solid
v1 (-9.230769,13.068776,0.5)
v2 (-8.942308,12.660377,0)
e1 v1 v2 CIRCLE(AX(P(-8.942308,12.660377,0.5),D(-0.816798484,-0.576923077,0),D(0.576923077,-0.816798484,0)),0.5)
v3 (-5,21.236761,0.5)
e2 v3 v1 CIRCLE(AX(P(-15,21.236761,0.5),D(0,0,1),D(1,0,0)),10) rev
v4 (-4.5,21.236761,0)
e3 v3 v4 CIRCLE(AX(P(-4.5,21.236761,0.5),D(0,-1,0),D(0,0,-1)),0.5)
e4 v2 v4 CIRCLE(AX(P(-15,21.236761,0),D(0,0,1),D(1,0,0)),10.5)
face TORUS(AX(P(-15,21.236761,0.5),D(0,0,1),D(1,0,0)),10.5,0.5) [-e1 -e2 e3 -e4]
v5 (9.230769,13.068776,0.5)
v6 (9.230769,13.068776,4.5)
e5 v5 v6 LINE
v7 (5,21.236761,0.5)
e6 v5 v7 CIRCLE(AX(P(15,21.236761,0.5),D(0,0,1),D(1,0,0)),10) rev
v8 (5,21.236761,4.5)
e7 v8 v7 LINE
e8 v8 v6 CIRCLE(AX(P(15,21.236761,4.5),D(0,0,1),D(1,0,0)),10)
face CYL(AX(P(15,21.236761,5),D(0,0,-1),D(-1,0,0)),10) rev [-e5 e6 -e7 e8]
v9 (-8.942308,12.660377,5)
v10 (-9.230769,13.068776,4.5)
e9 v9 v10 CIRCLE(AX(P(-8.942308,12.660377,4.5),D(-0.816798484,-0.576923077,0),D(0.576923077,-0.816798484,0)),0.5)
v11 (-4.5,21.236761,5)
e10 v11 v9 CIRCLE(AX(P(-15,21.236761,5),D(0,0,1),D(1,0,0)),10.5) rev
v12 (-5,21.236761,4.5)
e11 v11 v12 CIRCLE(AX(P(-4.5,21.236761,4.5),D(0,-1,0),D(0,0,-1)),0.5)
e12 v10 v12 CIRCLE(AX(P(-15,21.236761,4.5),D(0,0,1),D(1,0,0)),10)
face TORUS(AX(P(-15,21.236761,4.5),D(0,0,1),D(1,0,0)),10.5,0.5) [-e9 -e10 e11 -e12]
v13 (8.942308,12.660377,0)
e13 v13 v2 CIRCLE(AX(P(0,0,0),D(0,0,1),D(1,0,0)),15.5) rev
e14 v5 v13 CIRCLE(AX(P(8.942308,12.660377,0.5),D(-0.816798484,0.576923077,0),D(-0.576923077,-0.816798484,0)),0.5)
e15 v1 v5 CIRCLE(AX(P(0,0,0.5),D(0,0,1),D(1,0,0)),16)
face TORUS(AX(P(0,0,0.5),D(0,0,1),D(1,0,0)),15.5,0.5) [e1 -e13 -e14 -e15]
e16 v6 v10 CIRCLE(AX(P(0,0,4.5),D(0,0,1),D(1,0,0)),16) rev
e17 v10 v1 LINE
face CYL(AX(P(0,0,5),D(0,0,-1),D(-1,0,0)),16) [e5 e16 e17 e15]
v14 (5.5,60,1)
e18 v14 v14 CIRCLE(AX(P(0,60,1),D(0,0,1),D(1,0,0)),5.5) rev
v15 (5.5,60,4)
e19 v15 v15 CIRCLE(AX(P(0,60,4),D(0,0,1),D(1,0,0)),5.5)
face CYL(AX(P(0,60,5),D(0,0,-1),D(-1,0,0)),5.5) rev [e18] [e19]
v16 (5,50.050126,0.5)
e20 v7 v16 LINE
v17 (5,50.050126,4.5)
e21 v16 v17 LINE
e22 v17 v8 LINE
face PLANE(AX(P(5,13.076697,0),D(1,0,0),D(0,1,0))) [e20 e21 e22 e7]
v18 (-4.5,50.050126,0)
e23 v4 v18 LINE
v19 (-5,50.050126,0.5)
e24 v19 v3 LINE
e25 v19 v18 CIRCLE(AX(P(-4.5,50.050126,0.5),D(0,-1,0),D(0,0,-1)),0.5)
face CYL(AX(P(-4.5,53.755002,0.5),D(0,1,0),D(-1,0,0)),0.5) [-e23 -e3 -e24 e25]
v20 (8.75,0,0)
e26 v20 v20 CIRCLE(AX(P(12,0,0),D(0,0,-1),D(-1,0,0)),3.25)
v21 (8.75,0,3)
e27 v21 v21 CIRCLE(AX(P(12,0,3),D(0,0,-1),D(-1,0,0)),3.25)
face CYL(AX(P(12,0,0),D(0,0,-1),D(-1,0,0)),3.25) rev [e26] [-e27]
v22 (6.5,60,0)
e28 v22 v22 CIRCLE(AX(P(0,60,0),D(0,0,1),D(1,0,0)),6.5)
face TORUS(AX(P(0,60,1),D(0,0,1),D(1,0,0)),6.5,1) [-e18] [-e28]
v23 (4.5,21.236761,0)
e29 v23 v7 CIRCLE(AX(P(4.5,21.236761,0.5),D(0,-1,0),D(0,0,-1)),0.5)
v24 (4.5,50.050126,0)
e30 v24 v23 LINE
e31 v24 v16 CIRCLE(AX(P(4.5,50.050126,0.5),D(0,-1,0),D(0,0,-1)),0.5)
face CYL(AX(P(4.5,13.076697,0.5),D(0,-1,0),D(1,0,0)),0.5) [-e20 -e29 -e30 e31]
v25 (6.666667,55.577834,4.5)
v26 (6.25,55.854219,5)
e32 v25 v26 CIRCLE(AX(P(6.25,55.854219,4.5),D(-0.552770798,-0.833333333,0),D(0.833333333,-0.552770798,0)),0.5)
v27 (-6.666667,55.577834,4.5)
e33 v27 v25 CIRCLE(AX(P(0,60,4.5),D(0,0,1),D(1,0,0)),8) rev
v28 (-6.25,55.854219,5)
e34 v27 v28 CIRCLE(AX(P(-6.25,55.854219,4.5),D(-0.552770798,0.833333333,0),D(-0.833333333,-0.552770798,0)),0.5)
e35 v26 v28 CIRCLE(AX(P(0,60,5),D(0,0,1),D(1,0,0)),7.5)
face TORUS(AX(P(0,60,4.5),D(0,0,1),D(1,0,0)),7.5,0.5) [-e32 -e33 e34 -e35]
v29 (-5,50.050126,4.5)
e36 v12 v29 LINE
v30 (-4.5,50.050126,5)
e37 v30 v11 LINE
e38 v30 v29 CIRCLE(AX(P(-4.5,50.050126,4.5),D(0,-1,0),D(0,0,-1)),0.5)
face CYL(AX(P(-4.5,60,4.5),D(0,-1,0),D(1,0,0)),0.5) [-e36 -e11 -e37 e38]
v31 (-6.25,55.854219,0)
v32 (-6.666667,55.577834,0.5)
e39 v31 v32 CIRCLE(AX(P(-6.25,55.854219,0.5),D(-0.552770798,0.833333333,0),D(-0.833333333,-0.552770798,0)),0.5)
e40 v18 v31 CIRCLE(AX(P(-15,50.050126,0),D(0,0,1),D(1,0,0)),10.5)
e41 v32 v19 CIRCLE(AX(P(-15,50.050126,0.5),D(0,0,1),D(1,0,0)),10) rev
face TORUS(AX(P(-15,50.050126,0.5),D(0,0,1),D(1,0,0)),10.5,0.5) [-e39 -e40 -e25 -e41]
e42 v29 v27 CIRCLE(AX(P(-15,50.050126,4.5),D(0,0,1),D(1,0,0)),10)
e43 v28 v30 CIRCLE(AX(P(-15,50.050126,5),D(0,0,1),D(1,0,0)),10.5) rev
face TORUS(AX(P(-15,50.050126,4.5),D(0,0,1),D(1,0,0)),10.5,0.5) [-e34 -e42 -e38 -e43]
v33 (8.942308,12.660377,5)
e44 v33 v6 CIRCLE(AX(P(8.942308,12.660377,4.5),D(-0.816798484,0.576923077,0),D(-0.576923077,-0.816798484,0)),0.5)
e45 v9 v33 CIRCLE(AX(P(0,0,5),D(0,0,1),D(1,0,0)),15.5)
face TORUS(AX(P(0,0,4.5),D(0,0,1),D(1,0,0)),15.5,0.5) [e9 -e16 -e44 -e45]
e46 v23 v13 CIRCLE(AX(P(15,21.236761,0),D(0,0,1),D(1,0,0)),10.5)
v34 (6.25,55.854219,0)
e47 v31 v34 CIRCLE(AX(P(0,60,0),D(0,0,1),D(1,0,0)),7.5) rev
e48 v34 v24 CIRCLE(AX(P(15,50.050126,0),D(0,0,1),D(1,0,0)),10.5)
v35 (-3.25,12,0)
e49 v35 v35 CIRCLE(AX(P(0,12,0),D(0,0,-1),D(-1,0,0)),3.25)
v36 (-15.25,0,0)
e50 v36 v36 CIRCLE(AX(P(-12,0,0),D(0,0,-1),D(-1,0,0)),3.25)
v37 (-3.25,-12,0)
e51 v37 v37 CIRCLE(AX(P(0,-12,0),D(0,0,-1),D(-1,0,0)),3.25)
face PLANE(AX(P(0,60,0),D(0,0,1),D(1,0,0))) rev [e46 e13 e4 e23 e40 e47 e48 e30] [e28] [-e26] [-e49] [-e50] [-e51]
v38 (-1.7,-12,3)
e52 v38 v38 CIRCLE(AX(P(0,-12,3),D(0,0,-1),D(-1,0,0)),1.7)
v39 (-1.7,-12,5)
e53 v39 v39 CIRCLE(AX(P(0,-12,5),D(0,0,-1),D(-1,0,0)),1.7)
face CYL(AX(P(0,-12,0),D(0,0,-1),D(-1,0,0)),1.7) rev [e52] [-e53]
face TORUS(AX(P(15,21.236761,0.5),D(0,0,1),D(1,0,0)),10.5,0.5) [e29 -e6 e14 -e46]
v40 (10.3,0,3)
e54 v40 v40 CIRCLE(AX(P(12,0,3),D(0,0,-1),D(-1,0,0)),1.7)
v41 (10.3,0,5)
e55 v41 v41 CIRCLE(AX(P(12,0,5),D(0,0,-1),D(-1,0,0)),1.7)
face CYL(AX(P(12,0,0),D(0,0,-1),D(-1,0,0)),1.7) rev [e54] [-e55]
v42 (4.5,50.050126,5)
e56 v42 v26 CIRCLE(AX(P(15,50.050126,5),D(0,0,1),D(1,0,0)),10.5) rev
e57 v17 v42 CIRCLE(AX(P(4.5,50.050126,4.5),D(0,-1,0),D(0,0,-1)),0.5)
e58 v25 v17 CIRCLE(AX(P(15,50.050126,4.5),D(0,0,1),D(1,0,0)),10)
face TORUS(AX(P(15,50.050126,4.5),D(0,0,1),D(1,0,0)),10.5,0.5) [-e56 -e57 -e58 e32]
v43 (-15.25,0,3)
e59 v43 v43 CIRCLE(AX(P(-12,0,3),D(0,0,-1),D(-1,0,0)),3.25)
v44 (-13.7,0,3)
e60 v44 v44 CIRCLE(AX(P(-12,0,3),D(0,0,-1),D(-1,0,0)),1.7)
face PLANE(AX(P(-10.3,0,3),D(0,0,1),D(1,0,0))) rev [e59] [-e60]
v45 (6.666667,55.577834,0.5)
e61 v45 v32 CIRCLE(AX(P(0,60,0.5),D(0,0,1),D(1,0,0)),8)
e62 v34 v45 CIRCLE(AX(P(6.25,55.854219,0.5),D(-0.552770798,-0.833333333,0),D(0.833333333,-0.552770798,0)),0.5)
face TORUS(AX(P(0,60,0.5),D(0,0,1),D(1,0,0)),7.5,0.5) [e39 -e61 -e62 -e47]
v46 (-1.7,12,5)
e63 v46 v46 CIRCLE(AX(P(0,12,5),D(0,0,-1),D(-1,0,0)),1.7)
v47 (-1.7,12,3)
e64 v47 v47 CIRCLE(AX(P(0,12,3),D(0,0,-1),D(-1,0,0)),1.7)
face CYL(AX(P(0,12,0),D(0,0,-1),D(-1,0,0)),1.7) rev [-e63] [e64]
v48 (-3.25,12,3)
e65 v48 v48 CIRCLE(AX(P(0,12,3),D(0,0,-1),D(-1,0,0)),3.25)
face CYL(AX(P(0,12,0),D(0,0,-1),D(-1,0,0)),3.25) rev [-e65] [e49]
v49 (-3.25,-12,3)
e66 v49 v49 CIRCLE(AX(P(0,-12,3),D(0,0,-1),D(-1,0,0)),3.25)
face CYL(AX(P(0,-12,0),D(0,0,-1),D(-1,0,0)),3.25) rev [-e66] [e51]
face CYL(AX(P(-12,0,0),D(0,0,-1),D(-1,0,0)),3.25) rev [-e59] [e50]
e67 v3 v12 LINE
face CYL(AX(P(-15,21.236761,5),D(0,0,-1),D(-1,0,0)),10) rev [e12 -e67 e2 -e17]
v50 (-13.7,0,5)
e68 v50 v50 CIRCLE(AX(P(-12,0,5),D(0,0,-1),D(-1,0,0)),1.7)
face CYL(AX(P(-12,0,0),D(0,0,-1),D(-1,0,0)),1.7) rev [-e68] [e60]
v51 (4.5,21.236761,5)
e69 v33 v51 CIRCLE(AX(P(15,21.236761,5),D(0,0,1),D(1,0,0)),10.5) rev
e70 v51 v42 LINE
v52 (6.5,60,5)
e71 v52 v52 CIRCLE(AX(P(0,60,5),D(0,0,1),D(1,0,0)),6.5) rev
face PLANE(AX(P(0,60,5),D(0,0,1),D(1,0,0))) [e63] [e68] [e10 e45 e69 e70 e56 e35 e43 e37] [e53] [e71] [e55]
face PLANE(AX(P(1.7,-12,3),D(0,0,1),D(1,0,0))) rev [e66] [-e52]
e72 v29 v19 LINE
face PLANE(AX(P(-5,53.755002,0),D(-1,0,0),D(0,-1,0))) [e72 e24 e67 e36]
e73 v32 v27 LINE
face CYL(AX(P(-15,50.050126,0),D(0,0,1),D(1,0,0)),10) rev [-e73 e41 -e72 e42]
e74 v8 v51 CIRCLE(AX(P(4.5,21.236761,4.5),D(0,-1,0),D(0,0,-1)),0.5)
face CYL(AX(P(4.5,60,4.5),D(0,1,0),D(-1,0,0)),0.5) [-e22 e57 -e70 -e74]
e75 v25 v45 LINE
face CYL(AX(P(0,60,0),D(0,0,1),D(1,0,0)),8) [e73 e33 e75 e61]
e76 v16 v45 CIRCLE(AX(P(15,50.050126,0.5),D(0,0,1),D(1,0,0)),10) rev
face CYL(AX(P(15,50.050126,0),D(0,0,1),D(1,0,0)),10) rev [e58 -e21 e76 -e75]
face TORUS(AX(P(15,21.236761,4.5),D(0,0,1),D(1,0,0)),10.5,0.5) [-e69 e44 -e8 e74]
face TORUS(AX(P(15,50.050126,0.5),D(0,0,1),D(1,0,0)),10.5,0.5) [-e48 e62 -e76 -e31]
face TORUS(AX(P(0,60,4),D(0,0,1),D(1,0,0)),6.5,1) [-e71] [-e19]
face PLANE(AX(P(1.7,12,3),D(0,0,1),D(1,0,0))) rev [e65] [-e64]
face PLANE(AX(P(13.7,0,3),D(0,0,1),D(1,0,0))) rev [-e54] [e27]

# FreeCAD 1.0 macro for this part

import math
import FreeCAD as App
import Part
import Sketcher
from FreeCAD import Vector
Q = App.Units.Quantity


def edges_at(feature, points):
    """Names of the edges that pass closest to the given points."""
    edges = feature.Shape.Edges
    near = lambda p: min(range(len(edges)), key=lambda i: edges[i].distToShape(Part.Vertex(*p))[0])
    return sorted({f"Edge{near(p) + 1}" for p in points})


def add_polygon(sketch, points):
    """Adds a closed chain of lines whose ends are joined by coincident constraints."""
    first, n = sketch.GeometryCount, len(points)
    for a, b in zip(points, points[1:] + points[:1]):
        sketch.addGeometry(Part.LineSegment(App.Vector(*a, 0), App.Vector(*b, 0)), False)
    for i in range(n):
        sketch.addConstraint(Sketcher.Constraint("Coincident", first + i, 2, first + (i + 1) % n, 1))

doc = App.newDocument("Part")
body = doc.addObject("PartDesign::Body", "Body")

sketch1 = doc.addObject("Sketcher::SketchObject", "Sketch")
body.addObject(sketch1)
sketch1.AttachmentSupport = (doc.XY_Plane, [""])
sketch1.MapMode = "FlatFace"
sketch1.AttachmentOffset = App.Placement(Vector(0, 0, 5), App.Rotation())
sketch1.addGeometry(Part.LineSegment(Vector(-5, 53.755002, 0), Vector(-5, 13.076697, 0)), False)
sketch1.addGeometry(Part.ArcOfCircle(Part.Circle(Vector(0, 0, 0), Vector(0, 0, 1), 14), math.radians(110.924832), math.radians(429.075168)), False)
sketch1.addGeometry(Part.LineSegment(Vector(5, 13.076697, 0), Vector(5, 53.755002, 0)), False)
sketch1.addGeometry(Part.ArcOfCircle(Part.Circle(Vector(0, 60, 0), Vector(0, 0, 1), 8), math.radians(-51.317813), math.radians(231.317813)), False)
sketch1.addConstraint(Sketcher.Constraint("Coincident", 0, 2, 1, 1))
sketch1.addConstraint(Sketcher.Constraint("Coincident", 1, 2, 2, 1))
sketch1.addConstraint(Sketcher.Constraint("Coincident", 2, 2, 3, 1))
sketch1.addConstraint(Sketcher.Constraint("Coincident", 3, 2, 0, 1))
sketch1.addConstraint(Sketcher.Constraint("Vertical", 0))
sketch1.addConstraint(Sketcher.Constraint("Vertical", 2))
sketch1.addConstraint(Sketcher.Constraint("Coincident", 1, 3, -1, 1))
sketch1.addConstraint(Sketcher.Constraint("Symmetric", 2, 2, 3, 2, -2))
sketch1.addConstraint(Sketcher.Constraint("Radius", 1, 14.0))
sketch1.addConstraint(Sketcher.Constraint("Radius", 3, 8.0))
sketch1.addConstraint(Sketcher.Constraint("DistanceY", -1, 1, 3, 3, 60.0))
sketch1.addConstraint(Sketcher.Constraint("DistanceX", 0, 2, -1, 1, 5.0))
pad1 = doc.addObject("PartDesign::Pad", "Pad")
body.addObject(pad1)
pad1.Profile = sketch1
pad1.Length = 5
pad1.Reversed = True

sketch2 = doc.addObject("Sketcher::SketchObject", "Sketch001")
body.addObject(sketch2)
sketch2.AttachmentSupport = (doc.XZ_Plane, [""])
sketch2.MapMode = "FlatFace"
sketch2.AttachmentOffset = App.Placement(Vector(0, 0, -60), App.Rotation())
add_polygon(sketch2, [(3.5, 5), (0, 5), (0, 0), (4.3, 0), (2.5, 1.8), (2.5, 2), (3.5, 2)])
sketch2.addConstraint(Sketcher.Constraint("Horizontal", 0))
sketch2.addConstraint(Sketcher.Constraint("Vertical", 1))
sketch2.addConstraint(Sketcher.Constraint("Horizontal", 2))
sketch2.addConstraint(Sketcher.Constraint("Vertical", 4))
sketch2.addConstraint(Sketcher.Constraint("Horizontal", 5))
sketch2.addConstraint(Sketcher.Constraint("Vertical", 6))
sketch2.addConstraint(Sketcher.Constraint("Coincident", 1, 2, -1, 1))
sketch2.addConstraint(Sketcher.Constraint("DistanceX", 5, 1, 5, 2, 1.0))
sketch2.addConstraint(Sketcher.Constraint("DistanceY", 1, 2, 1, 1, 5.0))
sketch2.addConstraint(Sketcher.Constraint("DistanceY", 6, 1, 6, 2, 3.0))
sketch2.addConstraint(Sketcher.Constraint("Angle", 3, Q("135 deg")))
sketch2.addConstraint(Sketcher.Constraint("DistanceX", 0, 2, 0, 1, 3.5))
sketch2.addConstraint(Sketcher.Constraint("DistanceX", 2, 1, 2, 2, 4.3))
groove = doc.addObject("PartDesign::Groove", "Groove")
body.addObject(groove)
groove.Profile = sketch2
groove.ReferenceAxis = (sketch2, ["V_Axis"])
groove.Angle = 360

sketch3 = doc.addObject("Sketcher::SketchObject", "Sketch002")
body.addObject(sketch3)
sketch3.AttachmentSupport = (doc.XY_Plane, [""])
sketch3.MapMode = "FlatFace"
sketch3.addGeometry(Part.Circle(Vector(0, 0, 0), Vector(0, 0, 1), 16), False)
sketch3.addConstraint(Sketcher.Constraint("Coincident", 0, 3, -1, 1))
sketch3.addConstraint(Sketcher.Constraint("Diameter", 0, 32.0))
pad2 = doc.addObject("PartDesign::Pad", "Pad001")
body.addObject(pad2)
pad2.Profile = sketch3
pad2.Length = 5

sketch4 = doc.addObject("Sketcher::SketchObject", "Sketch003")
body.addObject(sketch4)
sketch4.AttachmentSupport = (doc.XY_Plane, [""])
sketch4.MapMode = "FlatFace"
sketch4.addGeometry(Part.Circle(Vector(0, 12, 0), Vector(0, 0, 1), 1.7), False)
sketch4.addGeometry(Part.Circle(Vector(-12, 0, 0), Vector(0, 0, 1), 1.7), False)
sketch4.addGeometry(Part.Circle(Vector(12, 0, 0), Vector(0, 0, 1), 1.7), False)
sketch4.addGeometry(Part.Circle(Vector(0, -12, 0), Vector(0, 0, 1), 1.7), False)
sketch4.addConstraint(Sketcher.Constraint("Equal", 0, 1))
sketch4.addConstraint(Sketcher.Constraint("Equal", 1, 2))
sketch4.addConstraint(Sketcher.Constraint("Equal", 2, 3))
sketch4.addConstraint(Sketcher.Constraint("Symmetric", 1, 3, 2, 3, -1, 1))
sketch4.addConstraint(Sketcher.Constraint("Symmetric", 0, 3, 3, 3, -1, 1))
sketch4.addConstraint(Sketcher.Constraint("PointOnObject", 0, 3, -2))
sketch4.addConstraint(Sketcher.Constraint("PointOnObject", 1, 3, -1))
sketch4.addConstraint(Sketcher.Constraint("Diameter", 0, 3.4))
sketch4.addConstraint(Sketcher.Constraint("DistanceY", -1, 1, 0, 3, 12.0))
sketch4.addConstraint(Sketcher.Constraint("DistanceX", 1, 3, -1, 1, 12.0))
doc.recompute()
hole = doc.addObject("PartDesign::Hole", "Hole")
body.addObject(hole)
hole.Profile = sketch4
hole.ThreadType = "None"
hole.Diameter = 3.4
hole.DepthType = "ThroughAll"
hole.HoleCutType = "Counterbore"
hole.HoleCutDiameter = 6.5
hole.HoleCutDepth = 3
hole.Reversed = True
doc.recompute()

fillet = doc.addObject("PartDesign::Fillet", "Fillet")
body.addObject(fillet)
fillet.Base = (hole, edges_at(hole, [
    (5, 15.199, 2.5),
    (-5, 15.199, 2.5),
    (5, 53.755, 2.5),
    (-5, 53.755, 2.5),
]))
fillet.Radius = 10

sketch5 = doc.addObject("Sketcher::SketchObject", "Sketch004")
body.addObject(sketch5)
sketch5.AttachmentSupport = (doc.XY_Plane, [""])
sketch5.MapMode = "FlatFace"
sketch5.addGeometry(Part.Circle(Vector(0, 60, 0), Vector(0, 0, 1), 5.5), False)
sketch5.addConstraint(Sketcher.Constraint("PointOnObject", 0, 3, -2))
sketch5.addConstraint(Sketcher.Constraint("Diameter", 0, 11.0))
sketch5.addConstraint(Sketcher.Constraint("DistanceY", -1, 1, 0, 3, 60.0))
pocket1 = doc.addObject("PartDesign::Pocket", "Pocket")
body.addObject(pocket1)
pocket1.Profile = sketch5
pocket1.Type = "ThroughAll"
pocket1.Reversed = True
doc.recompute()

fillet2 = doc.addObject("PartDesign::Fillet", "Fillet001")
body.addObject(fillet2)
fillet2.Base = (pocket1, edges_at(pocket1, [(5.5, 60, 0), (5.5, 60, 5)]))
fillet2.Radius = 1
doc.recompute()

fillet3 = doc.addObject("PartDesign::Fillet", "Fillet002")
body.addObject(fillet3)
fillet3.Base = (fillet2, edges_at(fillet2, [
    (0, -16, 0),
    (0, -16, 5),
    (5, 35.643, 0),
    (5, 35.643, 5),
    (-5, 35.643, 5),
    (-5, 35.643, 0),
    (0, 68, 5),
    (0, 68, 0),
    (6.12, 16.637, 5),
    (6.12, 16.637, 0),
    (-6.12, 16.637, 0),
    (-6.12, 16.637, 5),
    (-5.426, 52.937, 5),
    (-5.426, 52.937, 0),
    (5.426, 52.937, 5),
    (5.426, 52.937, 0),
]))
fillet3.Radius = 0.5

doc.recompute()
